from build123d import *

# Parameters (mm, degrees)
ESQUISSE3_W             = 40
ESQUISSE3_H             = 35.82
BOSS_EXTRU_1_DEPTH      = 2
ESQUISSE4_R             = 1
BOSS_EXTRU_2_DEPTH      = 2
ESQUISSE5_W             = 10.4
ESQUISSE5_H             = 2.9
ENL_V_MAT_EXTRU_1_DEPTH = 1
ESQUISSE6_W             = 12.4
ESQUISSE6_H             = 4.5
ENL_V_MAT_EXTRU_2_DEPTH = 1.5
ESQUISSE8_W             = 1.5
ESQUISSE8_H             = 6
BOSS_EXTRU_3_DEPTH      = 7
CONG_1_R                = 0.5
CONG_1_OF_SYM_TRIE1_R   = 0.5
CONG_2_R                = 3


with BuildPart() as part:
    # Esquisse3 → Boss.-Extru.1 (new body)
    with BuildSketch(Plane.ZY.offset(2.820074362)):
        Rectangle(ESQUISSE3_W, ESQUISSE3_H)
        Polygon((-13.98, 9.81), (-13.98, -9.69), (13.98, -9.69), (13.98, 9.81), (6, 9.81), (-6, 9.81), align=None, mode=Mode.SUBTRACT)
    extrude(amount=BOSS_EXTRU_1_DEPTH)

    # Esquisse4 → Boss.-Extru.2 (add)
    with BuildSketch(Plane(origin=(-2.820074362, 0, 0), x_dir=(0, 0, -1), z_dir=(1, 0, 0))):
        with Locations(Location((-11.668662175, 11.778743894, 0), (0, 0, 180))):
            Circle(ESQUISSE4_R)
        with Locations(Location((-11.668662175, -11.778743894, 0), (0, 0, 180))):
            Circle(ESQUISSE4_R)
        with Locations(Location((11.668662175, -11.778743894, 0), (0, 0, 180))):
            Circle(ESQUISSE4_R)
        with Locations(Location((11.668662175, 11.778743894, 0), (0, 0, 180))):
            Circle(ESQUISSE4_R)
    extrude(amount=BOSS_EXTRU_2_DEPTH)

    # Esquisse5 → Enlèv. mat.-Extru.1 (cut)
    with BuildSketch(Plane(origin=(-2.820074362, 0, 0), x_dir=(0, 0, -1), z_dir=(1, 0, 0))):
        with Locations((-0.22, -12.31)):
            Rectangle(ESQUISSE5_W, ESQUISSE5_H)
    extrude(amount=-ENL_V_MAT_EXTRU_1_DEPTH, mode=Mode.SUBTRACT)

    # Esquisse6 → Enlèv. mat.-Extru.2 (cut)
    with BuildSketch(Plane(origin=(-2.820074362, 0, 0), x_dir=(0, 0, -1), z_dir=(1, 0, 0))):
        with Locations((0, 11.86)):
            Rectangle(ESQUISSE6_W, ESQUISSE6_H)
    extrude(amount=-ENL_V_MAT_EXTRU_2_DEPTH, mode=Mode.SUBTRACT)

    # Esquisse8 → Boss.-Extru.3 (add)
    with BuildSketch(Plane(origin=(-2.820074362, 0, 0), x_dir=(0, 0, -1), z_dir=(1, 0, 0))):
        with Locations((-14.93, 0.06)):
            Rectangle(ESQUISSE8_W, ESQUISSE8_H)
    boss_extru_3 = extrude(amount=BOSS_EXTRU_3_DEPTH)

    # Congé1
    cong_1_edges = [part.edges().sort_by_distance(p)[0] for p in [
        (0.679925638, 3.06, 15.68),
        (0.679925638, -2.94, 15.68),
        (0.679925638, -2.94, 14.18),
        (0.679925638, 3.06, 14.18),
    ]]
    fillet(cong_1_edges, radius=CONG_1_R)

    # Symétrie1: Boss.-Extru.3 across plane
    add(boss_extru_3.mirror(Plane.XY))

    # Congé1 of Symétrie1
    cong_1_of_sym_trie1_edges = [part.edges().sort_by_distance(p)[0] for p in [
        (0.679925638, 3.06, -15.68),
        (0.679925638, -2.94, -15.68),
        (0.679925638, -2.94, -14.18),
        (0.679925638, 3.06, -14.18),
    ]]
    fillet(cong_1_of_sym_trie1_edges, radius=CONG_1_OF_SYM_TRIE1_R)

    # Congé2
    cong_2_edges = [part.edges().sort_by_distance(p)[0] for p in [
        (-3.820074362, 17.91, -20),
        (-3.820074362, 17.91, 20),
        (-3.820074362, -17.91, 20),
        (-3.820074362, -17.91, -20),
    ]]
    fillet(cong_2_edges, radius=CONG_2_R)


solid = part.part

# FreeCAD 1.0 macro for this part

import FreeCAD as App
import Part
import Sketcher
from FreeCAD import Vector
Q = App.Units.Quantity


def edges_at(feature, points):
    """Names of the edges that pass closest to the given points."""
    edges = feature.Shape.Edges
    near = lambda p: min(range(len(edges)), key=lambda i: edges[i].distToShape(Part.Vertex(*p))[0])
    return sorted({f"Edge{near(p) + 1}" for p in points})


def add_polygon(sketch, points):
    """Adds a closed chain of lines whose ends are joined by coincident constraints."""
    first, n = sketch.GeometryCount, len(points)
    for a, b in zip(points, points[1:] + points[:1]):
        sketch.addGeometry(Part.LineSegment(App.Vector(*a, 0), App.Vector(*b, 0)), False)
    for i in range(n):
        sketch.addConstraint(Sketcher.Constraint("Coincident", first + i, 2, first + (i + 1) % n, 1))

doc = App.newDocument("Part")
body = doc.addObject("PartDesign::Body", "Body")

# Sketch on YZ plane
sketch1 = body.newObject("Sketcher::SketchObject", "Sketch")
sketch1.AttachmentSupport = (doc.getObject("YZ_Plane"), [""])
sketch1.MapMode = "FlatFace"
sketch1.AttachmentOffset = App.Placement(Vector(0, 0, -2.820074), App.Rotation())
add_polygon(sketch1, [(17.91, -20), (-17.91, -20), (-17.91, 20), (17.91, 20)])  # lines 0-3
add_polygon(sketch1, [(-9.69, -13.98), (9.81, -13.98), (9.81, 13.98), (-9.69, 13.98)])  # lines 4-7
sketch1.addConstraint([
    Sketcher.Constraint("Horizontal", 0),
    Sketcher.Constraint("Vertical", 1),
    Sketcher.Constraint("Horizontal", 2),
    Sketcher.Constraint("Vertical", 3),
    Sketcher.Constraint("Horizontal", 4),
    Sketcher.Constraint("Vertical", 5),
    Sketcher.Constraint("Horizontal", 6),
    Sketcher.Constraint("Vertical", 7),
    Sketcher.Constraint("Symmetric", 0, 2, 2, 2, -1, 1),
    Sketcher.Constraint("DistanceY", 1, 1, 1, 2, Q("40 mm")),
    Sketcher.Constraint("DistanceX", 4, 1, 4, 2, Q("19.5 mm")),
    Sketcher.Constraint("DistanceX", 0, 2, 0, 1, Q("35.82 mm")),
    Sketcher.Constraint("DistanceY", 5, 1, 5, 2, Q("27.96 mm")),
    Sketcher.Constraint("DistanceX", 4, 2, 3, 2, Q("8.1 mm")),
    Sketcher.Constraint("DistanceY", 4, 2, -1, 1, Q("13.98 mm")),
])
pad1 = body.newObject("PartDesign::Pad", "Pad")
pad1.Profile = sketch1
pad1.Length = 2
pad1.Reversed = True

# Sketch on YZ plane
sketch2 = body.newObject("Sketcher::SketchObject", "Sketch001")
sketch2.AttachmentSupport = (doc.getObject("YZ_Plane"), [""])
sketch2.MapMode = "FlatFace"
sketch2.AttachmentOffset = App.Placement(Vector(0, 0, -2.820074), App.Rotation())
sketch2.addGeometry([
    Part.Circle(Vector(11.778744, 11.668662, 0), Vector(0, 0, 1), 1),
    Part.Circle(Vector(-11.778744, 11.668662, 0), Vector(0, 0, 1), 1),
    Part.Circle(Vector(-11.778744, -11.668662, 0), Vector(0, 0, 1), 1),
    Part.Circle(Vector(11.778744, -11.668662, 0), Vector(0, 0, 1), 1),
], False)
sketch2.addConstraint([
    Sketcher.Constraint("Equal", 0, 1),
    Sketcher.Constraint("Equal", 1, 2),
    Sketcher.Constraint("Equal", 2, 3),
    Sketcher.Constraint("Symmetric", 0, 3, 2, 3, -1, 1),
    Sketcher.Constraint("Symmetric", 1, 3, 3, 3, -1, 1),
    Sketcher.Constraint("Symmetric", 0, 3, 1, 3, -2),
    Sketcher.Constraint("Diameter", 0, Q("2 mm")),
    Sketcher.Constraint("DistanceX", -1, 1, 0, 3, Q("11.778744 mm")),
    Sketcher.Constraint("DistanceY", -1, 1, 0, 3, Q("11.668662 mm")),
])
pad2 = body.newObject("PartDesign::Pad", "Pad001")
pad2.Profile = sketch2
pad2.Length = 2

# Sketch on YZ plane
sketch3 = body.newObject("Sketcher::SketchObject", "Sketch002")
sketch3.AttachmentSupport = (doc.getObject("YZ_Plane"), [""])
sketch3.MapMode = "FlatFace"
sketch3.AttachmentOffset = App.Placement(Vector(0, 0, -2.820074), App.Rotation())
add_polygon(sketch3, [(-10.86, 5.42), (-13.76, 5.42), (-13.76, -4.98), (-10.86, -4.98)])  # lines 0-3
sketch3.addConstraint([
    Sketcher.Constraint("Horizontal", 0),
    Sketcher.Constraint("Vertical", 1),
    Sketcher.Constraint("Horizontal", 2),
    Sketcher.Constraint("Vertical", 3),
    Sketcher.Constraint("DistanceX", 0, 2, 0, 1, Q("2.9 mm")),
    Sketcher.Constraint("DistanceY", 1, 2, 1, 1, Q("10.4 mm")),
    Sketcher.Constraint("DistanceX", 0, 2, -1, 1, Q("13.76 mm")),
    Sketcher.Constraint("DistanceY", -1, 1, 0, 2, Q("5.42 mm")),
])
pocket1 = body.newObject("PartDesign::Pocket", "Pocket")
pocket1.Profile = sketch3
pocket1.Length = 1

# Sketch on YZ plane
sketch4 = body.newObject("Sketcher::SketchObject", "Sketch003")
sketch4.AttachmentSupport = (doc.getObject("YZ_Plane"), [""])
sketch4.MapMode = "FlatFace"
sketch4.AttachmentOffset = App.Placement(Vector(0, 0, -2.820074), App.Rotation())
add_polygon(sketch4, [(14.11, 6.2), (9.61, 6.2), (9.61, -6.2), (14.11, -6.2)])  # lines 0-3
sketch4.addConstraint([
    Sketcher.Constraint("Horizontal", 0),
    Sketcher.Constraint("Vertical", 1),
    Sketcher.Constraint("Horizontal", 2),
    Sketcher.Constraint("Vertical", 3),
    Sketcher.Constraint("DistanceX", 0, 2, 0, 1, Q("4.5 mm")),
    Sketcher.Constraint("DistanceY", 1, 2, 1, 1, Q("12.4 mm")),
    Sketcher.Constraint("DistanceY", -1, 1, 0, 2, Q("6.2 mm")),
    Sketcher.Constraint("DistanceX", -1, 1, 0, 2, Q("9.61 mm")),
])
pocket2 = body.newObject("PartDesign::Pocket", "Pocket001")
pocket2.Profile = sketch4
pocket2.Length = 1.5

# Sketch on YZ plane
sketch5 = body.newObject("Sketcher::SketchObject", "Sketch004")
sketch5.AttachmentSupport = (doc.getObject("YZ_Plane"), [""])
sketch5.MapMode = "FlatFace"
sketch5.AttachmentOffset = App.Placement(Vector(0, 0, -2.820074), App.Rotation())
add_polygon(sketch5, [(3.06, 15.68), (-2.94, 15.68), (-2.94, 14.18), (3.06, 14.18)])  # lines 0-3
sketch5.addConstraint([
    Sketcher.Constraint("Horizontal", 0),
    Sketcher.Constraint("Vertical", 1),
    Sketcher.Constraint("Horizontal", 2),
    Sketcher.Constraint("Vertical", 3),
    Sketcher.Constraint("DistanceX", 0, 2, 0, 1, Q("6 mm")),
    Sketcher.Constraint("DistanceY", 1, 2, 1, 1, Q("1.5 mm")),
    Sketcher.Constraint("DistanceX", 0, 2, -1, 1, Q("2.94 mm")),
    Sketcher.Constraint("DistanceY", -1, 1, 0, 2, Q("15.68 mm")),
])
pad3 = body.newObject("PartDesign::Pad", "Pad002")
pad3.Profile = sketch5
pad3.Length = 7
doc.recompute()

fillet = body.newObject("PartDesign::Fillet", "Fillet")
fillet.Base = (pad3, edges_at(pad3, [
    (0.68, 3.06, 15.68),
    (0.68, -2.94, 15.68),
    (0.68, -2.94, 14.18),
    (0.68, 3.06, 14.18),
]))
fillet.Radius = 0.5
doc.recompute()

mirrored = body.newObject("PartDesign::Mirrored", "Mirrored")
mirrored.Originals = [pad3]
mirrored.MirrorPlane = (doc.getObject("XY_Plane"), [""])
body.Tip = mirrored
doc.recompute()

fillet2 = body.newObject("PartDesign::Fillet", "Fillet001")
fillet2.Base = (mirrored, edges_at(mirrored, [
    (0.68, 3.06, -15.68),
    (0.68, -2.94, -15.68),
    (0.68, -2.94, -14.18),
    (0.68, 3.06, -14.18),
]))
fillet2.Radius = 0.5
doc.recompute()

fillet3 = body.newObject("PartDesign::Fillet", "Fillet002")
fillet3.Base = (fillet2, edges_at(fillet2, [
    (-3.82, 17.91, -20),
    (-3.82, 17.91, 20),
    (-3.82, -17.91, 20),
    (-3.82, -17.91, -20),
]))
fillet3.Radius = 3

doc.recompute()
